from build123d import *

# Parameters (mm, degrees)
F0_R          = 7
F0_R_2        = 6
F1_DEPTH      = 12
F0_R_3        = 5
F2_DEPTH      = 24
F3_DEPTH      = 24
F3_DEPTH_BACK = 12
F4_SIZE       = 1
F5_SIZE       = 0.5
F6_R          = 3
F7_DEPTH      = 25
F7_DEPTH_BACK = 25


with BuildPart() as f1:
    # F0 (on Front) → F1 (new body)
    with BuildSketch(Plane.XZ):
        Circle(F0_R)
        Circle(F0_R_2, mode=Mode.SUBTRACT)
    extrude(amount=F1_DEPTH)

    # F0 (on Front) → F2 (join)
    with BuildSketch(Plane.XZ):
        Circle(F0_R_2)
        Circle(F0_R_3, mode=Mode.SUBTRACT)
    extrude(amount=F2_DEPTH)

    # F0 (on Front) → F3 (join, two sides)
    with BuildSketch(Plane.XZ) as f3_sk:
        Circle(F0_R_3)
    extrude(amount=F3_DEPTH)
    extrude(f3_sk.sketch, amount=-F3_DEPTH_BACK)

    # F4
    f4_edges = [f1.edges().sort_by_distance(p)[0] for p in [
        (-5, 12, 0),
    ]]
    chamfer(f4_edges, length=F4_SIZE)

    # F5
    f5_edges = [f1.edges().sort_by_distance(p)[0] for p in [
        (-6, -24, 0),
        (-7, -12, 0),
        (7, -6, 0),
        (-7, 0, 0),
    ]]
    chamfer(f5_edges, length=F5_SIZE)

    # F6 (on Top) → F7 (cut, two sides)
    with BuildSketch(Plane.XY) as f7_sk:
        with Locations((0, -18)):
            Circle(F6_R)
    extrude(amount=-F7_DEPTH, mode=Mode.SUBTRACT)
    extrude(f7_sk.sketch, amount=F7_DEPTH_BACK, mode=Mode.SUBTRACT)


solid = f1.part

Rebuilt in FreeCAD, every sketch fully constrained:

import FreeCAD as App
import Part
import Sketcher


def edges_at(feature, points):
    """Names of the edges that pass closest to the given points."""
    edges = feature.Shape.Edges
    near = lambda p: min(range(len(edges)), key=lambda i: edges[i].distToShape(Part.Vertex(*p))[0])
    return sorted({f"Edge{near(p) + 1}" for p in points})

doc = App.newDocument("Part")
body = doc.addObject("PartDesign::Body", "Body")

# Sketch on XZ plane
sketch1 = body.newObject("Sketcher::SketchObject", "Sketch")
sketch1.AttachmentSupport = (doc.getObject("XZ_Plane"), [""])
sketch1.MapMode = "FlatFace"
sketch1.addGeometry(Part.Circle(App.Vector(0, 0, 0), App.Vector(0, 0, 1), 7), False)
sketch1.addGeometry(Part.Circle(App.Vector(0, 0, 0), App.Vector(0, 0, 1), 6), False)
sketch1.addConstraint(Sketcher.Constraint("Coincident", 0, 3, -1, 1))
sketch1.addConstraint(Sketcher.Constraint("Coincident", 1, 3, -1, 1))
sketch1.addConstraint(Sketcher.Constraint("Diameter", 0, 14.0))
sketch1.addConstraint(Sketcher.Constraint("Diameter", 1, 12.0))
pad1 = body.newObject("PartDesign::Pad", "Pad")
pad1.Profile = sketch1
pad1.Length = 12

# Sketch on XZ plane
sketch2 = body.newObject("Sketcher::SketchObject", "Sketch001")
sketch2.AttachmentSupport = (doc.getObject("XZ_Plane"), [""])
sketch2.MapMode = "FlatFace"
sketch2.addGeometry(Part.Circle(App.Vector(0, 0, 0), App.Vector(0, 0, 1), 6), False)
sketch2.addGeometry(Part.Circle(App.Vector(0, 0, 0), App.Vector(0, 0, 1), 5), False)
sketch2.addConstraint(Sketcher.Constraint("Coincident", 0, 3, -1, 1))
sketch2.addConstraint(Sketcher.Constraint("Coincident", 1, 3, -1, 1))
sketch2.addConstraint(Sketcher.Constraint("Diameter", 0, 12.0))
sketch2.addConstraint(Sketcher.Constraint("Diameter", 1, 10.0))
pad2 = body.newObject("PartDesign::Pad", "Pad001")
pad2.Profile = sketch2
pad2.Length = 24

# Sketch on XZ plane
sketch3 = body.newObject("Sketcher::SketchObject", "Sketch002")
sketch3.AttachmentSupport = (doc.getObject("XZ_Plane"), [""])
sketch3.MapMode = "FlatFace"
sketch3.addGeometry(Part.Circle(App.Vector(0, 0, 0), App.Vector(0, 0, 1), 5), False)
sketch3.addConstraint(Sketcher.Constraint("Coincident", 0, 3, -1, 1))
sketch3.addConstraint(Sketcher.Constraint("Diameter", 0, 10.0))
pad3 = body.newObject("PartDesign::Pad", "Pad002")
pad3.Profile = sketch3
pad3.Type = "TwoLengths"
pad3.Length = 24
pad3.Length2 = 12
doc.recompute()

chamfer = body.newObject("PartDesign::Chamfer", "Chamfer")
chamfer.Base = (pad3, edges_at(pad3, [(-5, 12, 0)]))
chamfer.Size = 1
doc.recompute()

chamfer2 = body.newObject("PartDesign::Chamfer", "Chamfer001")
chamfer2.Base = (chamfer, edges_at(chamfer, [
    (-6, -24, 0),
    (-7, -12, 0),
    (7, -6, 0),
    (-7, 0, 0),
]))
chamfer2.Size = 0.5

# Sketch on XY plane
sketch4 = body.newObject("Sketcher::SketchObject", "Sketch003")
sketch4.AttachmentSupport = (doc.getObject("XY_Plane"), [""])
sketch4.MapMode = "FlatFace"
sketch4.addGeometry(Part.Circle(App.Vector(0, -18, 0), App.Vector(0, 0, 1), 3), False)
sketch4.addConstraint(Sketcher.Constraint("PointOnObject", 0, 3, -2))
sketch4.addConstraint(Sketcher.Constraint("Diameter", 0, 6.0))
sketch4.addConstraint(Sketcher.Constraint("DistanceY", 0, 3, -1, 1, 18.0))
pocket1 = body.newObject("PartDesign::Pocket", "Pocket")
pocket1.Profile = sketch4
pocket1.Type = "ThroughAll"
pocket1.Midplane = True

doc.recompute()
